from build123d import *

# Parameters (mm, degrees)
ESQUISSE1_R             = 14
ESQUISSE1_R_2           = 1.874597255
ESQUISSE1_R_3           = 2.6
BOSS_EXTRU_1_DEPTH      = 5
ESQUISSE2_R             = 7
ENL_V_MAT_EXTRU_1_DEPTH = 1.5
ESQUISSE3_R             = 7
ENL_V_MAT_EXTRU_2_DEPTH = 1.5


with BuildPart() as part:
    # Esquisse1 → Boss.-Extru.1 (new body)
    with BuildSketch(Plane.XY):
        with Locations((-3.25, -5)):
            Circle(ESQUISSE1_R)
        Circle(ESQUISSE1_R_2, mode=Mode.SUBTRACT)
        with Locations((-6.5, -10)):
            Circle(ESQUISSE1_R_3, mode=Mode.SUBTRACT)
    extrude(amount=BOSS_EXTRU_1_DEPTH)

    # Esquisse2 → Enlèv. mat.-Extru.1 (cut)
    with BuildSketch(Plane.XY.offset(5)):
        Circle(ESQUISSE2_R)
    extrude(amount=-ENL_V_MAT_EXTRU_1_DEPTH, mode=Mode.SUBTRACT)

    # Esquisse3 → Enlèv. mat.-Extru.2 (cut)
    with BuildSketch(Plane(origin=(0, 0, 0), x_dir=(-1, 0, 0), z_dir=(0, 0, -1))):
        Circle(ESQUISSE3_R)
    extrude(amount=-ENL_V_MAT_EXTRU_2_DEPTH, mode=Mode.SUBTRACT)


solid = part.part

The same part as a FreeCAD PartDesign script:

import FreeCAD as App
import Part
import Sketcher

V = App.Vector

doc = App.newDocument("Part")
body = doc.addObject("PartDesign::Body", "Body")

# Sketch on XY plane
sketch1 = body.newObject("Sketcher::SketchObject", "Sketch")
sketch1.AttachmentSupport = (doc.getObject("XY_Plane"), [""])
sketch1.MapMode = "FlatFace"
sketch1.addGeometry(Part.Circle(V(-3.2, -5, 0), V(0, 0, 1), 14), False)
sketch1.addGeometry(Part.Circle(V(-6.5, -10, 0), V(0, 0, 1), 2.6), False)
sketch1.addGeometry(Part.Circle(V(0, 0, 0), V(0, 0, 1), 1.9), False)
sketch1.addConstraint(Sketcher.Constraint("Coincident", 2, 3, -1, 1))
sketch1.addConstraint(Sketcher.Constraint("Diameter", 0, 28.0))
sketch1.addConstraint(Sketcher.Constraint("Diameter", 1, 5.2))
sketch1.addConstraint(Sketcher.Constraint("DistanceY", 0, 3, -1, 1, 5.0))
sketch1.addConstraint(Sketcher.Constraint("DistanceY", 1, 3, -1, 1, 10.0))
sketch1.addConstraint(Sketcher.Constraint("DistanceX", 1, 3, -1, 1, 6.5))
sketch1.addConstraint(Sketcher.Constraint("DistanceX", 0, 3, -1, 1, 3.25))
sketch1.addConstraint(Sketcher.Constraint("Diameter", 2, 3.749195))
pad1 = body.newObject("PartDesign::Pad", "Pad")
pad1.Profile = sketch1
pad1.Length = 5

# Sketch on XY plane
sketch2 = body.newObject("Sketcher::SketchObject", "Sketch001")
sketch2.AttachmentSupport = (doc.getObject("XY_Plane"), [""])
sketch2.MapMode = "FlatFace"
sketch2.AttachmentOffset = App.Placement(V(0, 0, 5), App.Rotation())
sketch2.addGeometry(Part.Circle(V(0, 0, 0), V(0, 0, 1), 7), False)
sketch2.addConstraint(Sketcher.Constraint("Coincident", 0, 3, -1, 1))
sketch2.addConstraint(Sketcher.Constraint("Diameter", 0, 14.0))
pocket1 = body.newObject("PartDesign::Pocket", "Pocket")
pocket1.Profile = sketch2
pocket1.Length = 1.5

# Sketch on XY plane
sketch3 = body.newObject("Sketcher::SketchObject", "Sketch002")
sketch3.AttachmentSupport = (doc.getObject("XY_Plane"), [""])
sketch3.MapMode = "FlatFace"
sketch3.addGeometry(Part.Circle(V(0, 0, 0), V(0, 0, 1), 7), False)
sketch3.addConstraint(Sketcher.Constraint("Coincident", 0, 3, -1, 1))
sketch3.addConstraint(Sketcher.Constraint("Diameter", 0, 14.0))
pocket2 = body.newObject("PartDesign::Pocket", "Pocket001")
pocket2.Profile = sketch3
pocket2.Length = 1.5
pocket2.Reversed = True

doc.recompute()
